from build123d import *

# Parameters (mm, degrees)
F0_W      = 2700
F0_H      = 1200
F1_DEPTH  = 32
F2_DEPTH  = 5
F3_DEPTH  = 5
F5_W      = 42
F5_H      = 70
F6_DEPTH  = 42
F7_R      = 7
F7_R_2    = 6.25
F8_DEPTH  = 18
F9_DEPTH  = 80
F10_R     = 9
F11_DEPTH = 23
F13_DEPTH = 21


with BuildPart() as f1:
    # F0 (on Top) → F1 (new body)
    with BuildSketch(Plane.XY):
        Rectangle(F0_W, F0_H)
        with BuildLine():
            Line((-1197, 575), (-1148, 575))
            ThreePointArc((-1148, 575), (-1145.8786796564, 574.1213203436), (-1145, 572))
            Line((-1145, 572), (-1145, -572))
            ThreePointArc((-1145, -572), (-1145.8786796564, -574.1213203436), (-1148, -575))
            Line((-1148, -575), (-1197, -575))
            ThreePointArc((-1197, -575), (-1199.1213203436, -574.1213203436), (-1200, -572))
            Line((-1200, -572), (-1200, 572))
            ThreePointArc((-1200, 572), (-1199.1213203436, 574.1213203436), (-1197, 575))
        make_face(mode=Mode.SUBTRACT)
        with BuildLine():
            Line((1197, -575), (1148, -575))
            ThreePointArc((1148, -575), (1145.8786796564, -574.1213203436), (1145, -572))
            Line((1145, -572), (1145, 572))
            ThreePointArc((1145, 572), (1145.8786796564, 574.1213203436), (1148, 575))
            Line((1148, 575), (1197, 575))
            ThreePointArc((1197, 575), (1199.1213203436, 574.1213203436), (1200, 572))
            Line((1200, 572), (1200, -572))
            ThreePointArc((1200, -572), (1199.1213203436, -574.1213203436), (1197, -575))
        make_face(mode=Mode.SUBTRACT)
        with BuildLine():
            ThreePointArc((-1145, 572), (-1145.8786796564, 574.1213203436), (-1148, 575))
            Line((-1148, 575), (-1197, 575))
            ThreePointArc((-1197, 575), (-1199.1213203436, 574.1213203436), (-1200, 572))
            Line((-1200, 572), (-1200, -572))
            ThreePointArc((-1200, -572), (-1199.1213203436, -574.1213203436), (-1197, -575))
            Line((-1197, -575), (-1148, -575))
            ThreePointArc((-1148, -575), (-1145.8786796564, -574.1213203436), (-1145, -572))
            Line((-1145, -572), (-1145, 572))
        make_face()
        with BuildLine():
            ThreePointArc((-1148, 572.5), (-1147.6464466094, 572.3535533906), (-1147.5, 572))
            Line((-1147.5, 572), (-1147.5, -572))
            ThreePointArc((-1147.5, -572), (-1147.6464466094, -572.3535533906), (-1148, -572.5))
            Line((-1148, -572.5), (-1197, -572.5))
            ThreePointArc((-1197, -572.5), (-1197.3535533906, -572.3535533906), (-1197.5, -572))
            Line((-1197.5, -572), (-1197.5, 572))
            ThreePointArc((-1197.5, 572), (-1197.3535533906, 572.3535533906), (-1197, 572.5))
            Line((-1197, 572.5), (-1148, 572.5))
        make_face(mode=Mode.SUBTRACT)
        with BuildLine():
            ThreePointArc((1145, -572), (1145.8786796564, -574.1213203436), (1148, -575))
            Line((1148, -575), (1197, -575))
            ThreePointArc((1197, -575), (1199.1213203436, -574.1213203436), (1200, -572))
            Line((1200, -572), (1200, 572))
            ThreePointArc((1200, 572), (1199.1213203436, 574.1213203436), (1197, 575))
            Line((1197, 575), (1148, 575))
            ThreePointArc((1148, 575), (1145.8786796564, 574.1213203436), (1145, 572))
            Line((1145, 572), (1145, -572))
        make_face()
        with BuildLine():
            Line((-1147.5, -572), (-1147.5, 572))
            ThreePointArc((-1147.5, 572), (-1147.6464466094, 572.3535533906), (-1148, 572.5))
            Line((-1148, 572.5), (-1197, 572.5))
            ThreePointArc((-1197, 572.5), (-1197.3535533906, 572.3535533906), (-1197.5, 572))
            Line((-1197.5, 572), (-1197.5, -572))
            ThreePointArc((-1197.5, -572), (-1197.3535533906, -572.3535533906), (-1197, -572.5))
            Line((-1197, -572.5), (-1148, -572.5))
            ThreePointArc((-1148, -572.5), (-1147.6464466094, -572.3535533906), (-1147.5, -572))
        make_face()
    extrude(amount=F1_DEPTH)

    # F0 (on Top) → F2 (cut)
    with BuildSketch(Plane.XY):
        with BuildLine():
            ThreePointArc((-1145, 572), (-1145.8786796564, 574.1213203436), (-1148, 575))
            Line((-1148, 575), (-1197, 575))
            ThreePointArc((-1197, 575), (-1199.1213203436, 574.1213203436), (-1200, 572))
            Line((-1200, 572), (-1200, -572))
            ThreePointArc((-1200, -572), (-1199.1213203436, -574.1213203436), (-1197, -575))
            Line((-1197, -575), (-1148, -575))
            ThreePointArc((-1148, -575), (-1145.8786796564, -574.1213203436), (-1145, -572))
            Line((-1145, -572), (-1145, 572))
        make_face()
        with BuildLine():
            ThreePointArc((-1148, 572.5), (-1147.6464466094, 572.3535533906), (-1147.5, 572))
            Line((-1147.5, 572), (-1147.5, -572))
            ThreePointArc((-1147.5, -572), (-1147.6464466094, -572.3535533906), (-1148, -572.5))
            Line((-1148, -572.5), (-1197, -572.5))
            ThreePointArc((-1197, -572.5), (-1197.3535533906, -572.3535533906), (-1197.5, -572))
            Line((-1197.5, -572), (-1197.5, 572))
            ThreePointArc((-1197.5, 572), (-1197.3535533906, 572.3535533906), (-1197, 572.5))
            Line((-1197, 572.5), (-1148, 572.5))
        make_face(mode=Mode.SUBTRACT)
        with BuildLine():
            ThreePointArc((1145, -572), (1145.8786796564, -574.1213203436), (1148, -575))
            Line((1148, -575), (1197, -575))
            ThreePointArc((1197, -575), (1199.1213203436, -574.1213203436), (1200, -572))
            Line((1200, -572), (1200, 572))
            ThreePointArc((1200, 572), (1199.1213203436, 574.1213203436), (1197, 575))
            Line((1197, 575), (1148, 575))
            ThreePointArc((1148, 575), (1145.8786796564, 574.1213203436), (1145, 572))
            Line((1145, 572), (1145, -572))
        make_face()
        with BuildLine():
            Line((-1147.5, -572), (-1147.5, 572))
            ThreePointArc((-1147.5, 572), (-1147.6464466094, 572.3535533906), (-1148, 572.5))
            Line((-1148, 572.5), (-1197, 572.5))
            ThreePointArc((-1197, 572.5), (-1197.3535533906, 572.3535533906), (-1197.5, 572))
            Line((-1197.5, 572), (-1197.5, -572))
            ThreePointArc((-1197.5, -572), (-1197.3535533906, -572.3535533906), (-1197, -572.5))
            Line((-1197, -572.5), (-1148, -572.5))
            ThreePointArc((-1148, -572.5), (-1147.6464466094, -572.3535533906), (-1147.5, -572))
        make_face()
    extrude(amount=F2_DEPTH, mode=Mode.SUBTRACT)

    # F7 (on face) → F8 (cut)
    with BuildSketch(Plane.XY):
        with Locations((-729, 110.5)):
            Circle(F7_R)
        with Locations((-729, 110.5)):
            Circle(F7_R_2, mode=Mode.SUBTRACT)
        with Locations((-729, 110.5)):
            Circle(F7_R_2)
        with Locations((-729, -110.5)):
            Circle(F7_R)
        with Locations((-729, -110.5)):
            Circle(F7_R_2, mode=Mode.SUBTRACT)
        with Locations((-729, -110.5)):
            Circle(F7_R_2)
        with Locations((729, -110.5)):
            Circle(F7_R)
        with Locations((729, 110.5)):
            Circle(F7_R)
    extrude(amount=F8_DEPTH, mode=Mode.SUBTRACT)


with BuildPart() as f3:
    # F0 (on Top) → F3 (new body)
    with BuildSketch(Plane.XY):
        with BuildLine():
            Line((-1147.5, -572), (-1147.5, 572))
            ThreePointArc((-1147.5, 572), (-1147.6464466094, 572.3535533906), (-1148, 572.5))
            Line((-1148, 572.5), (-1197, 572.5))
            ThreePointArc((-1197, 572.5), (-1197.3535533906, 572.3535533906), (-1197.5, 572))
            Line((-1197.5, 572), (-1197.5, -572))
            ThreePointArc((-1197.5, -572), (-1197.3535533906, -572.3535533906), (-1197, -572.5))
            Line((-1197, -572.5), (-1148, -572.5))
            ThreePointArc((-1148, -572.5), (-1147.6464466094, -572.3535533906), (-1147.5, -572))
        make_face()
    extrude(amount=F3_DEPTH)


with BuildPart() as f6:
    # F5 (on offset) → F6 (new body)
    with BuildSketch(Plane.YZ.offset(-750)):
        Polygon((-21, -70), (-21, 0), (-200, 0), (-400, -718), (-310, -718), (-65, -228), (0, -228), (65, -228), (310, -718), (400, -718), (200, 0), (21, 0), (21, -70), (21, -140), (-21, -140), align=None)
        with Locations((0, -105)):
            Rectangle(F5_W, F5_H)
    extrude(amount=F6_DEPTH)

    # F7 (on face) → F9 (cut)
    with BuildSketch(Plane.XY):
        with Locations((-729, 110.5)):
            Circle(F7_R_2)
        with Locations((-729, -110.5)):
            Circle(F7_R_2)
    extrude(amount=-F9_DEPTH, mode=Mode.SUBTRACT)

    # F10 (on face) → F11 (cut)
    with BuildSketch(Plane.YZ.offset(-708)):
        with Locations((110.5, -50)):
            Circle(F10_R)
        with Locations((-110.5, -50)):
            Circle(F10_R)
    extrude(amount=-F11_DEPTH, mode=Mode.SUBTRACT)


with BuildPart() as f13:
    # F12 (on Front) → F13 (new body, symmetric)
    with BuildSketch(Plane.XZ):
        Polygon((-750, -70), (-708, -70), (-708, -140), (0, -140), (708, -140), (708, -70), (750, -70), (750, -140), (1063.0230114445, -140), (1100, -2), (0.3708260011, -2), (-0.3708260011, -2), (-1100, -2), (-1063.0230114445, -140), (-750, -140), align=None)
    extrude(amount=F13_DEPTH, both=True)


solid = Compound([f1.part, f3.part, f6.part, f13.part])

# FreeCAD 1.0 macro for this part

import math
import FreeCAD as App
import Part
import Sketcher
from FreeCAD import Vector
Q = App.Units.Quantity

doc = App.newDocument("Part")
body = doc.addObject("PartDesign::Body", "Body")

# Sketch on XY plane
sketch1 = body.newObject("Sketcher::SketchObject", "Sketch")
sketch1.AttachmentSupport = (doc.getObject("XY_Plane"), [""])
sketch1.MapMode = "FlatFace"
sketch1.addGeometry(Part.LineSegment(Vector(-1350, 600, 0), Vector(-1350, -600, 0)), False)
sketch1.addGeometry(Part.LineSegment(Vector(-1350, -600, 0), Vector(1350, -600, 0)), False)
sketch1.addGeometry(Part.LineSegment(Vector(1350, -600, 0), Vector(1350, 600, 0)), False)
sketch1.addGeometry(Part.LineSegment(Vector(1350, 600, 0), Vector(-1350, 600, 0)), False)
sketch1.addConstraint(Sketcher.Constraint("Coincident", 0, 2, 1, 1))
sketch1.addConstraint(Sketcher.Constraint("Coincident", 1, 2, 2, 1))
sketch1.addConstraint(Sketcher.Constraint("Coincident", 2, 2, 3, 1))
sketch1.addConstraint(Sketcher.Constraint("Coincident", 3, 2, 0, 1))
sketch1.addConstraint(Sketcher.Constraint("Vertical", 0))
sketch1.addConstraint(Sketcher.Constraint("Horizontal", 1))
sketch1.addConstraint(Sketcher.Constraint("Vertical", 2))
sketch1.addConstraint(Sketcher.Constraint("Horizontal", 3))
sketch1.addConstraint(Sketcher.Constraint("Symmetric", 0, 2, 2, 2, -1, 1))
sketch1.addConstraint(Sketcher.Constraint("DistanceX", 1, 1, 1, 2, 2700.0))
sketch1.addConstraint(Sketcher.Constraint("DistanceY", 0, 2, 0, 1, 1200.0))
pad1 = body.newObject("PartDesign::Pad", "Pad")
pad1.Profile = sketch1
pad1.Length = 32

# Sketch on XY plane
sketch2 = body.newObject("Sketcher::SketchObject", "Sketch001")
sketch2.AttachmentSupport = (doc.getObject("XY_Plane"), [""])
sketch2.MapMode = "FlatFace"
sketch2.addGeometry(Part.ArcOfCircle(Part.Circle(Vector(-1148, 572, 0), Vector(0, 0, 1), 3), math.radians(0), math.radians(90)), False)
sketch2.addGeometry(Part.LineSegment(Vector(-1148, 575, 0), Vector(-1197, 575, 0)), False)
sketch2.addGeometry(Part.ArcOfCircle(Part.Circle(Vector(-1197, 572, 0), Vector(0, 0, 1), 3), math.radians(90), math.radians(180)), False)
sketch2.addGeometry(Part.LineSegment(Vector(-1200, 572, 0), Vector(-1200, -572, 0)), False)
sketch2.addGeometry(Part.ArcOfCircle(Part.Circle(Vector(-1197, -572, 0), Vector(0, 0, 1), 3), math.radians(180), math.radians(270)), False)
sketch2.addGeometry(Part.LineSegment(Vector(-1197, -575, 0), Vector(-1148, -575, 0)), False)
sketch2.addGeometry(Part.ArcOfCircle(Part.Circle(Vector(-1148, -572, 0), Vector(0, 0, 1), 3), math.radians(-90), math.radians(0)), False)
sketch2.addGeometry(Part.LineSegment(Vector(-1145, -572, 0), Vector(-1145, 572, 0)), False)
sketch2.addGeometry(Part.ArcOfCircle(Part.Circle(Vector(1148, -572, 0), Vector(0, 0, 1), 3), math.radians(180), math.radians(270)), False)
sketch2.addGeometry(Part.LineSegment(Vector(1148, -575, 0), Vector(1197, -575, 0)), False)
sketch2.addGeometry(Part.ArcOfCircle(Part.Circle(Vector(1197, -572, 0), Vector(0, 0, 1), 3), math.radians(-90), math.radians(0)), False)
sketch2.addGeometry(Part.LineSegment(Vector(1200, -572, 0), Vector(1200, 572, 0)), False)
sketch2.addGeometry(Part.ArcOfCircle(Part.Circle(Vector(1197, 572, 0), Vector(0, 0, 1), 3), math.radians(0), math.radians(90)), False)
sketch2.addGeometry(Part.LineSegment(Vector(1197, 575, 0), Vector(1148, 575, 0)), False)
sketch2.addGeometry(Part.ArcOfCircle(Part.Circle(Vector(1148, 572, 0), Vector(0, 0, 1), 3), math.radians(90), math.radians(180)), False)
sketch2.addGeometry(Part.LineSegment(Vector(1145, 572, 0), Vector(1145, -572, 0)), False)
sketch2.addConstraint(Sketcher.Constraint("Tangent", 0, 2, 1, 1))
sketch2.addConstraint(Sketcher.Constraint("Tangent", 1, 2, 2, 1))
sketch2.addConstraint(Sketcher.Constraint("Tangent", 2, 2, 3, 1))
sketch2.addConstraint(Sketcher.Constraint("Tangent", 3, 2, 4, 1))
sketch2.addConstraint(Sketcher.Constraint("Tangent", 4, 2, 5, 1))
sketch2.addConstraint(Sketcher.Constraint("Tangent", 5, 2, 6, 1))
sketch2.addConstraint(Sketcher.Constraint("Tangent", 6, 2, 7, 1))
sketch2.addConstraint(Sketcher.Constraint("Tangent", 7, 2, 0, 1))
sketch2.addConstraint(Sketcher.Constraint("Tangent", 8, 2, 9, 1))
sketch2.addConstraint(Sketcher.Constraint("Tangent", 9, 2, 10, 1))
sketch2.addConstraint(Sketcher.Constraint("Tangent", 10, 2, 11, 1))
sketch2.addConstraint(Sketcher.Constraint("Tangent", 11, 2, 12, 1))
sketch2.addConstraint(Sketcher.Constraint("Tangent", 12, 2, 13, 1))
sketch2.addConstraint(Sketcher.Constraint("Tangent", 13, 2, 14, 1))
sketch2.addConstraint(Sketcher.Constraint("Tangent", 14, 2, 15, 1))
sketch2.addConstraint(Sketcher.Constraint("Tangent", 15, 2, 8, 1))
sketch2.addConstraint(Sketcher.Constraint("Horizontal", 1))
sketch2.addConstraint(Sketcher.Constraint("Vertical", 3))
sketch2.addConstraint(Sketcher.Constraint("Horizontal", 5))
sketch2.addConstraint(Sketcher.Constraint("Vertical", 7))
sketch2.addConstraint(Sketcher.Constraint("Horizontal", 9))
sketch2.addConstraint(Sketcher.Constraint("Vertical", 11))
sketch2.addConstraint(Sketcher.Constraint("Horizontal", 13))
sketch2.addConstraint(Sketcher.Constraint("Vertical", 15))
sketch2.addConstraint(Sketcher.Constraint("Equal", 0, 2))
sketch2.addConstraint(Sketcher.Constraint("Equal", 2, 4))
sketch2.addConstraint(Sketcher.Constraint("Equal", 4, 6))
sketch2.addConstraint(Sketcher.Constraint("Equal", 6, 8))
sketch2.addConstraint(Sketcher.Constraint("Equal", 8, 10))
sketch2.addConstraint(Sketcher.Constraint("Equal", 10, 12))
sketch2.addConstraint(Sketcher.Constraint("Equal", 12, 14))
sketch2.addConstraint(Sketcher.Constraint("Symmetric", 0, 3, 8, 3, -1, 1))
sketch2.addConstraint(Sketcher.Constraint("Symmetric", 4, 3, 12, 3, -1, 1))
sketch2.addConstraint(Sketcher.Constraint("Horizontal", 6, 3, 8, 3))
sketch2.addConstraint(Sketcher.Constraint("Radius", 0, 3.0))
sketch2.addConstraint(Sketcher.Constraint("DistanceX", 1, 2, 1, 1, 49.0))
sketch2.addConstraint(Sketcher.Constraint("DistanceY", 3, 2, 3, 1, 1144.0))
sketch2.addConstraint(Sketcher.Constraint("DistanceX", 0, 3, -1, 1, 1148.0))
pocket1 = body.newObject("PartDesign::Pocket", "Pocket")
pocket1.Profile = sketch2
pocket1.Length = 5
pocket1.Reversed = True

# Sketch on XY plane
sketch3 = body.newObject("Sketcher::SketchObject", "Sketch002")
sketch3.AttachmentSupport = (doc.getObject("XY_Plane"), [""])
sketch3.MapMode = "FlatFace"
sketch3.addGeometry(Part.Circle(Vector(-729, 110.5, 0), Vector(0, 0, 1), 7), False)
sketch3.addGeometry(Part.Circle(Vector(-729, -110.5, 0), Vector(0, 0, 1), 7), False)
sketch3.addGeometry(Part.Circle(Vector(729, -110.5, 0), Vector(0, 0, 1), 7), False)
sketch3.addGeometry(Part.Circle(Vector(729, 110.5, 0), Vector(0, 0, 1), 7), False)
sketch3.addConstraint(Sketcher.Constraint("Equal", 0, 1))
sketch3.addConstraint(Sketcher.Constraint("Equal", 1, 2))
sketch3.addConstraint(Sketcher.Constraint("Equal", 2, 3))
sketch3.addConstraint(Sketcher.Constraint("Symmetric", 0, 3, 2, 3, -1, 1))
sketch3.addConstraint(Sketcher.Constraint("Symmetric", 1, 3, 3, 3, -1, 1))
sketch3.addConstraint(Sketcher.Constraint("Symmetric", 1, 3, 2, 3, -2))
sketch3.addConstraint(Sketcher.Constraint("Diameter", 0, 14.0))
sketch3.addConstraint(Sketcher.Constraint("DistanceX", 0, 3, -1, 1, 729.0))
sketch3.addConstraint(Sketcher.Constraint("DistanceY", 1, 3, 0, 3, 221.0))
pocket2 = body.newObject("PartDesign::Pocket", "Pocket001")
pocket2.Profile = sketch3
pocket2.Length = 18
pocket2.Reversed = True
body2 = doc.addObject("PartDesign::Body", "Body001")

# Sketch on XY plane
sketch4 = body2.newObject("Sketcher::SketchObject", "Sketch003")
sketch4.AttachmentSupport = (doc.getObject("XY_Plane001"), [""])
sketch4.MapMode = "FlatFace"
sketch4.addGeometry(Part.LineSegment(Vector(-1147.5, -572, 0), Vector(-1147.5, 572, 0)), False)
sketch4.addGeometry(Part.ArcOfCircle(Part.Circle(Vector(-1148, 572, 0), Vector(0, 0, 1), 0.5), math.radians(0), math.radians(90)), False)
sketch4.addGeometry(Part.LineSegment(Vector(-1148, 572.5, 0), Vector(-1197, 572.5, 0)), False)
sketch4.addGeometry(Part.ArcOfCircle(Part.Circle(Vector(-1197, 572, 0), Vector(0, 0, 1), 0.5), math.radians(90), math.radians(180)), False)
sketch4.addGeometry(Part.LineSegment(Vector(-1197.5, 572, 0), Vector(-1197.5, -572, 0)), False)
sketch4.addGeometry(Part.ArcOfCircle(Part.Circle(Vector(-1197, -572, 0), Vector(0, 0, 1), 0.5), math.radians(180), math.radians(270)), False)
sketch4.addGeometry(Part.LineSegment(Vector(-1197, -572.5, 0), Vector(-1148, -572.5, 0)), False)
sketch4.addGeometry(Part.ArcOfCircle(Part.Circle(Vector(-1148, -572, 0), Vector(0, 0, 1), 0.5), math.radians(-90), math.radians(0)), False)
sketch4.addConstraint(Sketcher.Constraint("Tangent", 0, 2, 1, 1))
sketch4.addConstraint(Sketcher.Constraint("Tangent", 1, 2, 2, 1))
sketch4.addConstraint(Sketcher.Constraint("Tangent", 2, 2, 3, 1))
sketch4.addConstraint(Sketcher.Constraint("Tangent", 3, 2, 4, 1))
sketch4.addConstraint(Sketcher.Constraint("Tangent", 4, 2, 5, 1))
sketch4.addConstraint(Sketcher.Constraint("Tangent", 5, 2, 6, 1))
sketch4.addConstraint(Sketcher.Constraint("Tangent", 6, 2, 7, 1))
sketch4.addConstraint(Sketcher.Constraint("Tangent", 7, 2, 0, 1))
sketch4.addConstraint(Sketcher.Constraint("Vertical", 0))
sketch4.addConstraint(Sketcher.Constraint("Horizontal", 2))
sketch4.addConstraint(Sketcher.Constraint("Vertical", 4))
sketch4.addConstraint(Sketcher.Constraint("Horizontal", 6))
sketch4.addConstraint(Sketcher.Constraint("Equal", 1, 3))
sketch4.addConstraint(Sketcher.Constraint("Equal", 3, 5))
sketch4.addConstraint(Sketcher.Constraint("Equal", 5, 7))
sketch4.addConstraint(Sketcher.Constraint("Radius", 1, 0.5))
sketch4.addConstraint(Sketcher.Constraint("DistanceX", 2, 2, 2, 1, 49.0))
sketch4.addConstraint(Sketcher.Constraint("DistanceY", 0, 1, 0, 2, 1144.0))
sketch4.addConstraint(Sketcher.Constraint("DistanceX", 1, 3, -1, 1, 1148.0))
sketch4.addConstraint(Sketcher.Constraint("DistanceY", -1, 1, 1, 3, 572.0))
pad2 = body2.newObject("PartDesign::Pad", "Pad001")
pad2.Profile = sketch4
pad2.Length = 5
body3 = doc.addObject("PartDesign::Body", "Body002")

# Sketch on YZ plane
sketch5 = body3.newObject("Sketcher::SketchObject", "Sketch004")
sketch5.AttachmentSupport = (doc.getObject("YZ_Plane002"), [""])
sketch5.MapMode = "FlatFace"
sketch5.AttachmentOffset = App.Placement(Vector(0, 0, -750), App.Rotation())
sketch5.addGeometry(Part.LineSegment(Vector(-21, 0, 0), Vector(-200, 0, 0)), False)
sketch5.addGeometry(Part.LineSegment(Vector(-200, 0, 0), Vector(-400, -718, 0)), False)
sketch5.addGeometry(Part.LineSegment(Vector(-400, -718, 0), Vector(-310, -718, 0)), False)
sketch5.addGeometry(Part.LineSegment(Vector(-310, -718, 0), Vector(-65, -228, 0)), False)
sketch5.addGeometry(Part.LineSegment(Vector(-65, -228, 0), Vector(65, -228, 0)), False)
sketch5.addGeometry(Part.LineSegment(Vector(65, -228, 0), Vector(310, -718, 0)), False)
sketch5.addGeometry(Part.LineSegment(Vector(310, -718, 0), Vector(400, -718, 0)), False)
sketch5.addGeometry(Part.LineSegment(Vector(400, -718, 0), Vector(200, 0, 0)), False)
sketch5.addGeometry(Part.LineSegment(Vector(200, 0, 0), Vector(21, 0, 0)), False)
sketch5.addGeometry(Part.LineSegment(Vector(21, 0, 0), Vector(21, -70, 0)), False)
sketch5.addGeometry(Part.LineSegment(Vector(21, -70, 0), Vector(-21, -70, 0)), False)
sketch5.addGeometry(Part.LineSegment(Vector(-21, -70, 0), Vector(-21, 0, 0)), False)
sketch5.addConstraint(Sketcher.Constraint("Coincident", 0, 2, 1, 1))
sketch5.addConstraint(Sketcher.Constraint("Coincident", 1, 2, 2, 1))
sketch5.addConstraint(Sketcher.Constraint("Coincident", 2, 2, 3, 1))
sketch5.addConstraint(Sketcher.Constraint("Coincident", 3, 2, 4, 1))
sketch5.addConstraint(Sketcher.Constraint("Coincident", 4, 2, 5, 1))
sketch5.addConstraint(Sketcher.Constraint("Coincident", 5, 2, 6, 1))
sketch5.addConstraint(Sketcher.Constraint("Coincident", 6, 2, 7, 1))
sketch5.addConstraint(Sketcher.Constraint("Coincident", 7, 2, 8, 1))
sketch5.addConstraint(Sketcher.Constraint("Coincident", 8, 2, 9, 1))
sketch5.addConstraint(Sketcher.Constraint("Coincident", 9, 2, 10, 1))
sketch5.addConstraint(Sketcher.Constraint("Coincident", 10, 2, 11, 1))
sketch5.addConstraint(Sketcher.Constraint("Coincident", 11, 2, 0, 1))
sketch5.addConstraint(Sketcher.Constraint("Horizontal", 0))
sketch5.addConstraint(Sketcher.Constraint("Horizontal", 2))
sketch5.addConstraint(Sketcher.Constraint("Horizontal", 4))
sketch5.addConstraint(Sketcher.Constraint("Horizontal", 6))
sketch5.addConstraint(Sketcher.Constraint("Horizontal", 8))
sketch5.addConstraint(Sketcher.Constraint("Vertical", 9))
sketch5.addConstraint(Sketcher.Constraint("Horizontal", 10))
sketch5.addConstraint(Sketcher.Constraint("Vertical", 11))
sketch5.addConstraint(Sketcher.Constraint("Symmetric", 0, 2, 7, 2, -1, 1))
sketch5.addConstraint(Sketcher.Constraint("Symmetric", 2, 2, 5, 2, -2))
sketch5.addConstraint(Sketcher.Constraint("Symmetric", 8, 2, 11, 2, -2))
sketch5.addConstraint(Sketcher.Constraint("Equal", 2, 6))
sketch5.addConstraint(Sketcher.Constraint("Equal", 3, 5))
sketch5.addConstraint(Sketcher.Constraint("DistanceX", 0, 2, 0, 1, 179.0))
sketch5.addConstraint(Sketcher.Constraint("DistanceX", 2, 1, 2, 2, 90.0))
sketch5.addConstraint(Sketcher.Constraint("DistanceX", 4, 1, 4, 2, 130.0))
sketch5.addConstraint(Sketcher.Constraint("DistanceX", 10, 2, 10, 1, 42.0))
sketch5.addConstraint(Sketcher.Constraint("DistanceY", 9, 2, 9, 1, 70.0))
sketch5.addConstraint(Sketcher.Constraint("DistanceX", 1, 2, -1, 1, 400.0))
sketch5.addConstraint(Sketcher.Constraint("DistanceY", 1, 2, -1, 1, 718.0))
sketch5.addConstraint(Sketcher.Constraint("DistanceY", 3, 2, -1, 1, 228.0))
pad3 = body3.newObject("PartDesign::Pad", "Pad002")
pad3.Profile = sketch5
pad3.Length = 42

# Sketch on XY plane
sketch6 = body3.newObject("Sketcher::SketchObject", "Sketch005")
sketch6.AttachmentSupport = (doc.getObject("XY_Plane002"), [""])
sketch6.MapMode = "FlatFace"
sketch6.addGeometry(Part.Circle(Vector(-729, 110.5, 0), Vector(0, 0, 1), 6.25), False)
sketch6.addGeometry(Part.Circle(Vector(-729, -110.5, 0), Vector(0, 0, 1), 6.25), False)
sketch6.addConstraint(Sketcher.Constraint("Equal", 0, 1))
sketch6.addConstraint(Sketcher.Constraint("Symmetric", 0, 3, 1, 3, -1))
sketch6.addConstraint(Sketcher.Constraint("Diameter", 0, 12.5))
sketch6.addConstraint(Sketcher.Constraint("DistanceX", 0, 3, -1, 1, 729.0))
sketch6.addConstraint(Sketcher.Constraint("DistanceY", 1, 3, 0, 3, 221.0))
pocket3 = body3.newObject("PartDesign::Pocket", "Pocket002")
pocket3.Profile = sketch6
pocket3.Length = 80

# Sketch on YZ plane
sketch7 = body3.newObject("Sketcher::SketchObject", "Sketch006")
sketch7.AttachmentSupport = (doc.getObject("YZ_Plane002"), [""])
sketch7.MapMode = "FlatFace"
sketch7.AttachmentOffset = App.Placement(Vector(0, 0, -708), App.Rotation())
sketch7.addGeometry(Part.Circle(Vector(110.5, -50, 0), Vector(0, 0, 1), 9), False)
sketch7.addGeometry(Part.Circle(Vector(-110.5, -50, 0), Vector(0, 0, 1), 9), False)
sketch7.addConstraint(Sketcher.Constraint("Equal", 0, 1))
sketch7.addConstraint(Sketcher.Constraint("Symmetric", 0, 3, 1, 3, -2))
sketch7.addConstraint(Sketcher.Constraint("Diameter", 0, 18.0))
sketch7.addConstraint(Sketcher.Constraint("DistanceY", 0, 3, -1, 1, 50.0))
sketch7.addConstraint(Sketcher.Constraint("DistanceX", 1, 3, 0, 3, 221.0))
pocket4 = body3.newObject("PartDesign::Pocket", "Pocket003")
pocket4.Profile = sketch7
pocket4.Length = 23
body4 = doc.addObject("PartDesign::Body", "Body003")

# Sketch on XZ plane
sketch8 = body4.newObject("Sketcher::SketchObject", "Sketch007")
sketch8.AttachmentSupport = (doc.getObject("XZ_Plane003"), [""])
sketch8.MapMode = "FlatFace"
sketch8.addGeometry(Part.LineSegment(Vector(-750, -70, 0), Vector(-708, -70, 0)), False)
sketch8.addGeometry(Part.LineSegment(Vector(-708, -70, 0), Vector(-708, -140, 0)), False)
sketch8.addGeometry(Part.LineSegment(Vector(-708, -140, 0), Vector(708, -140, 0)), False)
sketch8.addGeometry(Part.LineSegment(Vector(708, -140, 0), Vector(708, -70, 0)), False)
sketch8.addGeometry(Part.LineSegment(Vector(708, -70, 0), Vector(750, -70, 0)), False)
sketch8.addGeometry(Part.LineSegment(Vector(750, -70, 0), Vector(750, -140, 0)), False)
sketch8.addGeometry(Part.LineSegment(Vector(750, -140, 0), Vector(1063.023011, -140, 0)), False)
sketch8.addGeometry(Part.LineSegment(Vector(1063.023011, -140, 0), Vector(1100, -2, 0)), False)
sketch8.addGeometry(Part.LineSegment(Vector(1100, -2, 0), Vector(-1100, -2, 0)), False)
sketch8.addGeometry(Part.LineSegment(Vector(-1100, -2, 0), Vector(-1063.023011, -140, 0)), False)
sketch8.addGeometry(Part.LineSegment(Vector(-1063.023011, -140, 0), Vector(-750, -140, 0)), False)
sketch8.addGeometry(Part.LineSegment(Vector(-750, -140, 0), Vector(-750, -70, 0)), False)
sketch8.addConstraint(Sketcher.Constraint("Coincident", 0, 2, 1, 1))
sketch8.addConstraint(Sketcher.Constraint("Coincident", 1, 2, 2, 1))
sketch8.addConstraint(Sketcher.Constraint("Coincident", 2, 2, 3, 1))
sketch8.addConstraint(Sketcher.Constraint("Coincident", 3, 2, 4, 1))
sketch8.addConstraint(Sketcher.Constraint("Coincident", 4, 2, 5, 1))
sketch8.addConstraint(Sketcher.Constraint("Coincident", 5, 2, 6, 1))
sketch8.addConstraint(Sketcher.Constraint("Coincident", 6, 2, 7, 1))
sketch8.addConstraint(Sketcher.Constraint("Coincident", 7, 2, 8, 1))
sketch8.addConstraint(Sketcher.Constraint("Coincident", 8, 2, 9, 1))
sketch8.addConstraint(Sketcher.Constraint("Coincident", 9, 2, 10, 1))
sketch8.addConstraint(Sketcher.Constraint("Coincident", 10, 2, 11, 1))
sketch8.addConstraint(Sketcher.Constraint("Coincident", 11, 2, 0, 1))
sketch8.addConstraint(Sketcher.Constraint("Horizontal", 0))
sketch8.addConstraint(Sketcher.Constraint("Vertical", 1))
sketch8.addConstraint(Sketcher.Constraint("Horizontal", 2))
sketch8.addConstraint(Sketcher.Constraint("Vertical", 3))
sketch8.addConstraint(Sketcher.Constraint("Horizontal", 4))
sketch8.addConstraint(Sketcher.Constraint("Vertical", 5))
sketch8.addConstraint(Sketcher.Constraint("Horizontal", 6))
sketch8.addConstraint(Sketcher.Constraint("Horizontal", 8))
sketch8.addConstraint(Sketcher.Constraint("Horizontal", 10))
sketch8.addConstraint(Sketcher.Constraint("Vertical", 11))
sketch8.addConstraint(Sketcher.Constraint("Symmetric", 0, 2, 3, 2, -2))
sketch8.addConstraint(Sketcher.Constraint("Symmetric", 6, 2, 9, 2, -2))
sketch8.addConstraint(Sketcher.Constraint("Horizontal", 2, 2, 5, 2))
sketch8.addConstraint(Sketcher.Constraint("Equal", 0, 4))
sketch8.addConstraint(Sketcher.Constraint("Equal", 7, 9))
sketch8.addConstraint(Sketcher.Constraint("DistanceX", 0, 1, 0, 2, 42.0))
sketch8.addConstraint(Sketcher.Constraint("DistanceX", 2, 1, 2, 2, 1416.0))
sketch8.addConstraint(Sketcher.Constraint("DistanceX", 8, 2, 8, 1, 2200.0))
sketch8.addConstraint(Sketcher.Constraint("DistanceY", 1, 2, 1, 1, 70.0))
sketch8.addConstraint(Sketcher.Constraint("Angle", 7, Q("75 deg")))
sketch8.addConstraint(Sketcher.Constraint("DistanceY", 0, 2, -1, 1, 70.0))
sketch8.addConstraint(Sketcher.Constraint("DistanceY", 7, 2, -1, 1, 2.0))
pad4 = body4.newObject("PartDesign::Pad", "Pad003")
pad4.Profile = sketch8
pad4.Length = 42
pad4.Midplane = True

doc.recompute()
